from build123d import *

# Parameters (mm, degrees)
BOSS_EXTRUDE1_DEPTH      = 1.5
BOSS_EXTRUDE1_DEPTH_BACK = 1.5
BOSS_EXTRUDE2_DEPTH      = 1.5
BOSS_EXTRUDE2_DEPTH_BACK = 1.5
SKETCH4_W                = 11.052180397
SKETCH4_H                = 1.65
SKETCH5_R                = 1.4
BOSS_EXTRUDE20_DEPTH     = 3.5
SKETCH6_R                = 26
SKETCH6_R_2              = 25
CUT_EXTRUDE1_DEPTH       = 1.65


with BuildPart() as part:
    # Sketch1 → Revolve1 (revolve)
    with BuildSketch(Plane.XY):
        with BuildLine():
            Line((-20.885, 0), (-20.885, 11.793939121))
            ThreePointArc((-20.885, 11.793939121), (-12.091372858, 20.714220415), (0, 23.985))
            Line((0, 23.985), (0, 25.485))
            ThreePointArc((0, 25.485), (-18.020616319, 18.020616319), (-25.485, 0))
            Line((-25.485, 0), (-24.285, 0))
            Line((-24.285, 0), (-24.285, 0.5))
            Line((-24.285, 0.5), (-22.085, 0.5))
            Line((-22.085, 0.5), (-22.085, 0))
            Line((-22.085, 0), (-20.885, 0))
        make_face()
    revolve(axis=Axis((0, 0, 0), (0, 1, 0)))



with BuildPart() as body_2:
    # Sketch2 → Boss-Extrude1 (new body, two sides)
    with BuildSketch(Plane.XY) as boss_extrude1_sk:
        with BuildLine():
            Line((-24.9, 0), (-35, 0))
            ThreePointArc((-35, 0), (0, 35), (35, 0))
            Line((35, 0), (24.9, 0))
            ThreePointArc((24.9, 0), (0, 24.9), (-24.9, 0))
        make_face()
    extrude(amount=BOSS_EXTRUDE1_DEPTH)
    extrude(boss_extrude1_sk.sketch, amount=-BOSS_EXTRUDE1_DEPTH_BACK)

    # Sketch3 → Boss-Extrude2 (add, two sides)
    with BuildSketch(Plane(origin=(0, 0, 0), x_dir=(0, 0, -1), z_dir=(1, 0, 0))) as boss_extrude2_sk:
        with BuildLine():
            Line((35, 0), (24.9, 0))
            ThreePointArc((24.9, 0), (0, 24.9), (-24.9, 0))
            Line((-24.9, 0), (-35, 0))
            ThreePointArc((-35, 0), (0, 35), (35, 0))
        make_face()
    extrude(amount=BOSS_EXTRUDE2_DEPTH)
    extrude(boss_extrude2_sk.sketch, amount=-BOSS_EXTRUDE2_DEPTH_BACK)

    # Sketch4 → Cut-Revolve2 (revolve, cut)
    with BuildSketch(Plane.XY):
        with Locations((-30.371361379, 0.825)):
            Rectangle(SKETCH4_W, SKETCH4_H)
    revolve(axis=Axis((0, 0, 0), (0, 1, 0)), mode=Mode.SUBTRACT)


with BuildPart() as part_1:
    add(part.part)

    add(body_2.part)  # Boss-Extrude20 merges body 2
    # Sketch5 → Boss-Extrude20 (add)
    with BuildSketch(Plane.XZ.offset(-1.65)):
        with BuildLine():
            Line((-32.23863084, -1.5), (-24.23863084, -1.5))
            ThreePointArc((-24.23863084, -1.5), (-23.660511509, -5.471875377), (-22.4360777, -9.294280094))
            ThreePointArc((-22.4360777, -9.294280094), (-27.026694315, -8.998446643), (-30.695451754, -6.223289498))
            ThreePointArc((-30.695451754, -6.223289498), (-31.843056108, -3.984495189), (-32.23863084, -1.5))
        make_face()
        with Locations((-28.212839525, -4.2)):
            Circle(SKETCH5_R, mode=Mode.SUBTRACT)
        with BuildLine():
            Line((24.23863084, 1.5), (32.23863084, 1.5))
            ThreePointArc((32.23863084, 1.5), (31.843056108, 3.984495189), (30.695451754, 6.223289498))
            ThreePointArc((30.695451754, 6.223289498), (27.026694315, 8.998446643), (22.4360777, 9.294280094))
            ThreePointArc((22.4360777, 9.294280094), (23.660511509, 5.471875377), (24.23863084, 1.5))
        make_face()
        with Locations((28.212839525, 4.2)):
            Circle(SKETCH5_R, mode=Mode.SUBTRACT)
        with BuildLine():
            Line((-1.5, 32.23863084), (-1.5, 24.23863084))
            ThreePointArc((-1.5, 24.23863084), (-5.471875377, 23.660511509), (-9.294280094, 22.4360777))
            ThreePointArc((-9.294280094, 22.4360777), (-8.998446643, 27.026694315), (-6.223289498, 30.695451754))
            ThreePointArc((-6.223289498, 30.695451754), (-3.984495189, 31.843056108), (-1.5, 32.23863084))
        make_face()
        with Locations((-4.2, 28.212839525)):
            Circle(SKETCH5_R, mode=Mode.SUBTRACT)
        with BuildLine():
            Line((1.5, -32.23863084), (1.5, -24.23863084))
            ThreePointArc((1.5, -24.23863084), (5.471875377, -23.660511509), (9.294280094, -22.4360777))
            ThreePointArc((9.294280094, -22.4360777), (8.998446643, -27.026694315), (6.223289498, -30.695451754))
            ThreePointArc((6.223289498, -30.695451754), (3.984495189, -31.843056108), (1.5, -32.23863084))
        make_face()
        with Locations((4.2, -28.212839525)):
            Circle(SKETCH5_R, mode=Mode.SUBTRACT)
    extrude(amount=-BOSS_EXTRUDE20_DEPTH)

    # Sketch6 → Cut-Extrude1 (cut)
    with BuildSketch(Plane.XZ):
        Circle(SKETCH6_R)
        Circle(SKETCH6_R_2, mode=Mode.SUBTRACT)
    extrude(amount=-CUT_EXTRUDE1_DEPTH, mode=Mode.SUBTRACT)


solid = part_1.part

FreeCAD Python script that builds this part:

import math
import FreeCAD as App
import Part
import Sketcher

V = App.Vector

doc = App.newDocument("Part")
params = doc.addObject("Spreadsheet::Sheet", "Params")
for row, (alias, value) in enumerate([
    ("sketch1_width", "1.2 mm"),
    ("sketch1_width2", "2.2 mm"),
    ("sketch1_height", "1.5 mm"),
    ("sketch1_height2", "0.5 mm"),
    ("revolution_angle", "360 deg"),
    ("sketch2_radius", "35 mm"),
    ("sketch2_radius2", "24.9 mm"),
    ("pad1_length", "1.5 mm"),
    ("pad1_length2", "1.5 mm"),
    ("sketch3_radius", "35 mm"),
    ("sketch3_radius2", "24.9 mm"),
    ("pad2_length", "1.5 mm"),
    ("pad2_length2", "1.5 mm"),
    ("sketch4_height", "1.65 mm"),
    ("groove_angle", "360 deg"),
    ("sketch5_radius", "8 mm"),
    ("sketch5_diameter", "2.8 mm"),
    ("pad3_length", "3.5 mm"),
    ("sketch6_diameter", "52 mm"),
    ("sketch6_diameter2", "50 mm"),
    ("pocket1_length", "1.65 mm"),
], start=1):
    params.set(f"A{row}", alias)
    params.set(f"B{row}", "=" + value)
    params.setAlias(f"B{row}", alias)

body = doc.addObject("PartDesign::Body", "Body")

sketch1 = body.newObject("Sketcher::SketchObject", "Sketch")
sketch1.AttachmentSupport = (doc.getObject("XY_Plane"), [""])
sketch1.MapMode = "FlatFace"
sketch1.addGeometry(Part.LineSegment(V(-20.9, 0, 0), V(-20.9, 11.8, 0)), False)
sketch1.addGeometry(Part.ArcOfCircle(Part.Circle(V(0, 0, 0), V(0, 0, 1), 24), math.radians(90), math.radians(151)), False)
sketch1.addGeometry(Part.LineSegment(V(0, 24, 0), V(0, 25.5, 0)), False)
sketch1.addGeometry(Part.ArcOfCircle(Part.Circle(V(0, 0, 0), V(0, 0, 1), 25.5), math.radians(90), math.radians(180)), False)
sketch1.addGeometry(Part.LineSegment(V(-25.5, 0, 0), V(-24.3, 0, 0)), False)
sketch1.addGeometry(Part.LineSegment(V(-24.3, 0, 0), V(-24.3, 0.5, 0)), False)
sketch1.addGeometry(Part.LineSegment(V(-24.3, 0.5, 0), V(-22.1, 0.5, 0)), False)
sketch1.addGeometry(Part.LineSegment(V(-22.1, 0.5, 0), V(-22.1, 0, 0)), False)
sketch1.addGeometry(Part.LineSegment(V(-22.1, 0, 0), V(-20.9, 0, 0)), False)
sketch1.addConstraint(Sketcher.Constraint("Coincident", 0, 2, 1, 2))
sketch1.addConstraint(Sketcher.Constraint("Coincident", 1, 1, 2, 1))
sketch1.addConstraint(Sketcher.Constraint("Coincident", 2, 2, 3, 1))
sketch1.addConstraint(Sketcher.Constraint("Coincident", 3, 2, 4, 1))
sketch1.addConstraint(Sketcher.Constraint("Coincident", 4, 2, 5, 1))
sketch1.addConstraint(Sketcher.Constraint("Coincident", 5, 2, 6, 1))
sketch1.addConstraint(Sketcher.Constraint("Coincident", 6, 2, 7, 1))
sketch1.addConstraint(Sketcher.Constraint("Coincident", 7, 2, 8, 1))
sketch1.addConstraint(Sketcher.Constraint("Coincident", 8, 2, 0, 1))
sketch1.addConstraint(Sketcher.Constraint("Vertical", 0))
sketch1.addConstraint(Sketcher.Constraint("Vertical", 2))
sketch1.addConstraint(Sketcher.Constraint("Horizontal", 4))
sketch1.addConstraint(Sketcher.Constraint("Vertical", 5))
sketch1.addConstraint(Sketcher.Constraint("Horizontal", 6))
sketch1.addConstraint(Sketcher.Constraint("Vertical", 7))
sketch1.addConstraint(Sketcher.Constraint("Horizontal", 8))
sketch1.addConstraint(Sketcher.Constraint("Coincident", 1, 3, -1, 1))
sketch1.addConstraint(Sketcher.Constraint("Coincident", 3, 3, -1, 1))
sketch1.addConstraint(Sketcher.Constraint("PointOnObject", 1, 1, -2))
sketch1.addConstraint(Sketcher.Constraint("PointOnObject", 3, 2, -1))
sketch1.addConstraint(Sketcher.Constraint("PointOnObject", 7, 2, -1))
sketch1.addConstraint(Sketcher.Constraint("Equal", 4, 8))
sketch1.addConstraint(Sketcher.Constraint("DistanceX", 4, 1, 4, 2, 1.2))
sketch1.addConstraint(Sketcher.Constraint("DistanceX", 6, 1, 6, 2, 2.2))
sketch1.addConstraint(Sketcher.Constraint("DistanceY", 2, 1, 2, 2, 1.5))
sketch1.addConstraint(Sketcher.Constraint("DistanceY", 5, 1, 5, 2, 0.5))
sketch1.addConstraint(Sketcher.Constraint("Radius", 1, 23.985))
sketch1.setExpression("Constraints[22]", "Params.sketch1_width")
sketch1.setExpression("Constraints[23]", "Params.sketch1_width2")
sketch1.setExpression("Constraints[24]", "Params.sketch1_height")
sketch1.setExpression("Constraints[25]", "Params.sketch1_height2")
revolution = body.newObject("PartDesign::Revolution", "Revolution")
revolution.Profile = sketch1
revolution.ReferenceAxis = (sketch1, ["V_Axis"])
revolution.setExpression("Angle", "Params.revolution_angle")
body2 = doc.addObject("PartDesign::Body", "Body001")

sketch2 = body2.newObject("Sketcher::SketchObject", "Sketch001")
sketch2.AttachmentSupport = (doc.getObject("XY_Plane001"), [""])
sketch2.MapMode = "FlatFace"
sketch2.addGeometry(Part.LineSegment(V(-35, 0, 0), V(-25, 0, 0)), False)
sketch2.addGeometry(Part.ArcOfCircle(Part.Circle(V(0, 0, 0), V(0, 0, 1), 25), math.radians(0), math.radians(180)), False)
sketch2.addGeometry(Part.LineSegment(V(25, 0, 0), V(35, 0, 0)), False)
sketch2.addGeometry(Part.ArcOfCircle(Part.Circle(V(0, 0, 0), V(0, 0, 1), 35), math.radians(0), math.radians(180)), False)
sketch2.addConstraint(Sketcher.Constraint("Coincident", 0, 2, 1, 2))
sketch2.addConstraint(Sketcher.Constraint("Coincident", 1, 1, 2, 1))
sketch2.addConstraint(Sketcher.Constraint("Coincident", 2, 2, 3, 1))
sketch2.addConstraint(Sketcher.Constraint("Coincident", 3, 2, 0, 1))
sketch2.addConstraint(Sketcher.Constraint("Horizontal", 0))
sketch2.addConstraint(Sketcher.Constraint("Horizontal", 2))
sketch2.addConstraint(Sketcher.Constraint("Coincident", 1, 3, -1, 1))
sketch2.addConstraint(Sketcher.Constraint("Coincident", 3, 3, -1, 1))
sketch2.addConstraint(Sketcher.Constraint("PointOnObject", 0, 2, -1))
sketch2.addConstraint(Sketcher.Constraint("PointOnObject", 1, 1, -1))
sketch2.addConstraint(Sketcher.Constraint("Radius", 3, 35.0))
sketch2.addConstraint(Sketcher.Constraint("Radius", 1, 24.9))
sketch2.setExpression("Constraints[10]", "Params.sketch2_radius")
sketch2.setExpression("Constraints[11]", "Params.sketch2_radius2")
pad1 = body2.newObject("PartDesign::Pad", "Pad")
pad1.Profile = sketch2
pad1.Type = "TwoLengths"
pad1.setExpression("Length", "Params.pad1_length")
pad1.setExpression("Length2", "Params.pad1_length2")

sketch3 = body2.newObject("Sketcher::SketchObject", "Sketch002")
sketch3.AttachmentSupport = (doc.getObject("YZ_Plane001"), [""])
sketch3.MapMode = "FlatFace"
sketch3.addGeometry(Part.LineSegment(V(0, -25, 0), V(0, -35, 0)), False)
sketch3.addGeometry(Part.ArcOfCircle(Part.Circle(V(0, 0, 0), V(0, 0, 1), 35), math.radians(-90), math.radians(90)), False)
sketch3.addGeometry(Part.LineSegment(V(0, 35, 0), V(0, 25, 0)), False)
sketch3.addGeometry(Part.ArcOfCircle(Part.Circle(V(0, 0, 0), V(0, 0, 1), 25), math.radians(-90), math.radians(90)), False)
sketch3.addConstraint(Sketcher.Constraint("Coincident", 0, 2, 1, 1))
sketch3.addConstraint(Sketcher.Constraint("Coincident", 1, 2, 2, 1))
sketch3.addConstraint(Sketcher.Constraint("Coincident", 2, 2, 3, 2))
sketch3.addConstraint(Sketcher.Constraint("Coincident", 3, 1, 0, 1))
sketch3.addConstraint(Sketcher.Constraint("Vertical", 0))
sketch3.addConstraint(Sketcher.Constraint("Vertical", 2))
sketch3.addConstraint(Sketcher.Constraint("Coincident", 1, 3, -1, 1))
sketch3.addConstraint(Sketcher.Constraint("Coincident", 3, 3, -1, 1))
sketch3.addConstraint(Sketcher.Constraint("PointOnObject", 0, 2, -2))
sketch3.addConstraint(Sketcher.Constraint("PointOnObject", 1, 2, -2))
sketch3.addConstraint(Sketcher.Constraint("Radius", 1, 35.0))
sketch3.addConstraint(Sketcher.Constraint("Radius", 3, 24.9))
sketch3.setExpression("Constraints[10]", "Params.sketch3_radius")
sketch3.setExpression("Constraints[11]", "Params.sketch3_radius2")
pad2 = body2.newObject("PartDesign::Pad", "Pad001")
pad2.Profile = sketch3
pad2.Type = "TwoLengths"
pad2.setExpression("Length", "Params.pad2_length")
pad2.setExpression("Length2", "Params.pad2_length2")

sketch4 = body2.newObject("Sketcher::SketchObject", "Sketch003")
sketch4.AttachmentSupport = (doc.getObject("XY_Plane001"), [""])
sketch4.MapMode = "FlatFace"
sketch4.addGeometry(Part.LineSegment(V(-35.9, 1.6, 0), V(-35.9, 0, 0)), False)
sketch4.addGeometry(Part.LineSegment(V(-35.9, 0, 0), V(-24.8, 0, 0)), False)
sketch4.addGeometry(Part.LineSegment(V(-24.8, 0, 0), V(-24.8, 1.6, 0)), False)
sketch4.addGeometry(Part.LineSegment(V(-24.8, 1.6, 0), V(-35.9, 1.6, 0)), False)
sketch4.addConstraint(Sketcher.Constraint("Coincident", 0, 2, 1, 1))
sketch4.addConstraint(Sketcher.Constraint("Coincident", 1, 2, 2, 1))
sketch4.addConstraint(Sketcher.Constraint("Coincident", 2, 2, 3, 1))
sketch4.addConstraint(Sketcher.Constraint("Coincident", 3, 2, 0, 1))
sketch4.addConstraint(Sketcher.Constraint("Vertical", 0))
sketch4.addConstraint(Sketcher.Constraint("Horizontal", 1))
sketch4.addConstraint(Sketcher.Constraint("Vertical", 2))
sketch4.addConstraint(Sketcher.Constraint("Horizontal", 3))
sketch4.addConstraint(Sketcher.Constraint("PointOnObject", 0, 2, -1))
sketch4.addConstraint(Sketcher.Constraint("DistanceY", 0, 2, 0, 1, 1.65))
sketch4.addConstraint(Sketcher.Constraint("DistanceX", 1, 1, 1, 2, 11.05218))
sketch4.addConstraint(Sketcher.Constraint("DistanceX", 0, 2, -1, 1, 35.897452))
sketch4.setExpression("Constraints[9]", "Params.sketch4_height")
groove = body2.newObject("PartDesign::Groove", "Groove")
groove.Profile = sketch4
groove.ReferenceAxis = (sketch4, ["V_Axis"])
groove.setExpression("Angle", "Params.groove_angle")
doc.recompute()

boolean = body.newObject("PartDesign::Boolean", "Boolean")
boolean.Type = "Fuse"
boolean.addObjects([body2])

sketch5 = body.newObject("Sketcher::SketchObject", "Sketch004")
sketch5.AttachmentSupport = (doc.getObject("XZ_Plane"), [""])
sketch5.MapMode = "FlatFace"
sketch5.AttachmentOffset = App.Placement(V(0, 0, -1.65), App.Rotation())
sketch5.addGeometry(Part.LineSegment(V(-24.2, -1.5, 0), V(-32.2, -1.5, 0)), False)
sketch5.addGeometry(Part.ArcOfCircle(Part.Circle(V(-24.2, -1.5, 0), V(0, 0, 1), 8), math.radians(180), math.radians(216)), False)
sketch5.addGeometry(Part.ArcOfCircle(Part.Circle(V(-24.2, -1.5, 0), V(0, 0, 1), 8), math.radians(-144), math.radians(-77)), False)
sketch5.addGeometry(Part.ArcOfCircle(Part.Circle(V(0, 0, 0), V(0, 0, 1), 24.3), math.radians(-176.46), math.radians(-157.5)), False)
sketch5.addGeometry(Part.Circle(V(-28.2, -4.2, 0), V(0, 0, 1), 1.4), False)
sketch5.addGeometry(Part.LineSegment(V(24.2, 1.5, 0), V(32.2, 1.5, 0)), False)
sketch5.addGeometry(Part.ArcOfCircle(Part.Circle(V(24.2, 1.5, 0), V(0, 0, 1), 8), math.radians(0), math.radians(36)), False)
sketch5.addGeometry(Part.ArcOfCircle(Part.Circle(V(24.2, 1.5, 0), V(0, 0, 1), 8), math.radians(36), math.radians(103)), False)
sketch5.addGeometry(Part.ArcOfCircle(Part.Circle(V(0, 0, 0), V(0, 0, 1), 24.3), math.radians(3.54), math.radians(22.5)), False)
sketch5.addGeometry(Part.Circle(V(28.2, 4.2, 0), V(0, 0, 1), 1.4), False)
sketch5.addGeometry(Part.LineSegment(V(-1.5, 24.2, 0), V(-1.5, 32.2, 0)), False)
sketch5.addGeometry(Part.ArcOfCircle(Part.Circle(V(-1.5, 24.2, 0), V(0, 0, 1), 8), math.radians(90), math.radians(126)), False)
sketch5.addGeometry(Part.ArcOfCircle(Part.Circle(V(-1.5, 24.2, 0), V(0, 0, 1), 8), math.radians(126), math.radians(193)), False)
sketch5.addGeometry(Part.ArcOfCircle(Part.Circle(V(0, 0, 0), V(0, 0, 1), 24.3), math.radians(93.54), math.radians(112.5)), False)
sketch5.addGeometry(Part.Circle(V(-4.2, 28.2, 0), V(0, 0, 1), 1.4), False)
sketch5.addGeometry(Part.LineSegment(V(1.5, -24.2, 0), V(1.5, -32.2, 0)), False)
sketch5.addGeometry(Part.ArcOfCircle(Part.Circle(V(1.5, -24.2, 0), V(0, 0, 1), 8), math.radians(-90), math.radians(-54)), False)
sketch5.addGeometry(Part.ArcOfCircle(Part.Circle(V(1.5, -24.2, 0), V(0, 0, 1), 8), math.radians(-54), math.radians(13)), False)
sketch5.addGeometry(Part.ArcOfCircle(Part.Circle(V(0, 0, 0), V(0, 0, 1), 24.3), math.radians(-86.46), math.radians(-67.5)), False)
sketch5.addGeometry(Part.Circle(V(4.2, -28.2, 0), V(0, 0, 1), 1.4), False)
sketch5.addConstraint(Sketcher.Constraint("Coincident", 0, 2, 1, 1))
sketch5.addConstraint(Sketcher.Constraint("Tangent", 1, 2, 2, 1))
sketch5.addConstraint(Sketcher.Constraint("Coincident", 2, 2, 3, 2))
sketch5.addConstraint(Sketcher.Constraint("Coincident", 3, 1, 0, 1))
sketch5.addConstraint(Sketcher.Constraint("Coincident", 5, 2, 6, 1))
sketch5.addConstraint(Sketcher.Constraint("Tangent", 6, 2, 7, 1))
sketch5.addConstraint(Sketcher.Constraint("Coincident", 7, 2, 8, 2))
sketch5.addConstraint(Sketcher.Constraint("Coincident", 8, 1, 5, 1))
sketch5.addConstraint(Sketcher.Constraint("Coincident", 10, 2, 11, 1))
sketch5.addConstraint(Sketcher.Constraint("Tangent", 11, 2, 12, 1))
sketch5.addConstraint(Sketcher.Constraint("Coincident", 12, 2, 13, 2))
sketch5.addConstraint(Sketcher.Constraint("Coincident", 13, 1, 10, 1))
sketch5.addConstraint(Sketcher.Constraint("Coincident", 15, 2, 16, 1))
sketch5.addConstraint(Sketcher.Constraint("Tangent", 16, 2, 17, 1))
sketch5.addConstraint(Sketcher.Constraint("Coincident", 17, 2, 18, 2))
sketch5.addConstraint(Sketcher.Constraint("Coincident", 18, 1, 15, 1))
sketch5.addConstraint(Sketcher.Constraint("Horizontal", 0))
sketch5.addConstraint(Sketcher.Constraint("Horizontal", 5))
sketch5.addConstraint(Sketcher.Constraint("Vertical", 10))
sketch5.addConstraint(Sketcher.Constraint("Vertical", 15))
sketch5.addConstraint(Sketcher.Constraint("Coincident", 3, 3, -1, 1))
sketch5.addConstraint(Sketcher.Constraint("Coincident", 8, 3, -1, 1))
sketch5.addConstraint(Sketcher.Constraint("Coincident", 13, 3, -1, 1))
sketch5.addConstraint(Sketcher.Constraint("Coincident", 18, 3, -1, 1))
sketch5.addConstraint(Sketcher.Constraint("Coincident", 3, 1, 1, 3))
sketch5.addConstraint(Sketcher.Constraint("Coincident", 8, 1, 6, 3))
sketch5.addConstraint(Sketcher.Constraint("Coincident", 13, 1, 11, 3))
sketch5.addConstraint(Sketcher.Constraint("Coincident", 18, 1, 16, 3))
sketch5.addConstraint(Sketcher.Constraint("Equal", 1, 2))
sketch5.addConstraint(Sketcher.Constraint("Equal", 2, 6))
sketch5.addConstraint(Sketcher.Constraint("Equal", 6, 7))
sketch5.addConstraint(Sketcher.Constraint("Equal", 3, 8))
sketch5.addConstraint(Sketcher.Constraint("Equal", 4, 9))
sketch5.addConstraint(Sketcher.Constraint("Equal", 7, 11))
sketch5.addConstraint(Sketcher.Constraint("Equal", 11, 12))
sketch5.addConstraint(Sketcher.Constraint("Equal", 8, 13))
sketch5.addConstraint(Sketcher.Constraint("Equal", 9, 14))
sketch5.addConstraint(Sketcher.Constraint("Equal", 12, 16))
sketch5.addConstraint(Sketcher.Constraint("Equal", 16, 17))
sketch5.addConstraint(Sketcher.Constraint("Equal", 13, 18))
sketch5.addConstraint(Sketcher.Constraint("Equal", 14, 19))
sketch5.addConstraint(Sketcher.Constraint("Symmetric", 4, 3, 9, 3, -1, 1))
sketch5.addConstraint(Sketcher.Constraint("Symmetric", 14, 3, 19, 3, -1, 1))
sketch5.addConstraint(Sketcher.Constraint("Symmetric", 1, 2, 6, 2, -1, 1))
sketch5.addConstraint(Sketcher.Constraint("Symmetric", 11, 2, 16, 2, -1, 1))
sketch5.addConstraint(Sketcher.Constraint("Radius", 1, 8.0))
sketch5.addConstraint(Sketcher.Constraint("Diameter", 4, 2.8))
sketch5.addConstraint(Sketcher.Constraint("Radius", 3, 24.285))
sketch5.addConstraint(Sketcher.Constraint("DistanceY", 2, 3, 6, 3, 3.0))
sketch5.addConstraint(Sketcher.Constraint("DistanceY", 4, 3, -1, 1, 4.2))
sketch5.addConstraint(Sketcher.Constraint("DistanceX", 11, 3, -1, 1, 1.5))
sketch5.addConstraint(Sketcher.Constraint("DistanceX", 14, 3, -1, 1, 4.2))
sketch5.addConstraint(Sketcher.Constraint("DistanceX", 4, 3, -1, 1, 28.21284))
sketch5.addConstraint(Sketcher.Constraint("DistanceY", -1, 1, 14, 3, 28.21284))
sketch5.addConstraint(Sketcher.Constraint("DistanceX", 1, 2, -1, 1, 30.695452))
sketch5.addConstraint(Sketcher.Constraint("DistanceX", 11, 2, -1, 1, 6.223289))
sketch5.setExpression("Constraints[45]", "Params.sketch5_radius")
sketch5.setExpression("Constraints[46]", "Params.sketch5_diameter")
pad3 = body.newObject("PartDesign::Pad", "Pad002")
pad3.Profile = sketch5
pad3.setExpression("Length", "Params.pad3_length")
pad3.Reversed = True

sketch6 = body.newObject("Sketcher::SketchObject", "Sketch005")
sketch6.AttachmentSupport = (doc.getObject("XZ_Plane"), [""])
sketch6.MapMode = "FlatFace"
sketch6.addGeometry(Part.Circle(V(0, 0, 0), V(0, 0, 1), 26), False)
sketch6.addGeometry(Part.Circle(V(0, 0, 0), V(0, 0, 1), 25), False)
sketch6.addConstraint(Sketcher.Constraint("Coincident", 0, 3, -1, 1))
sketch6.addConstraint(Sketcher.Constraint("Coincident", 1, 3, -1, 1))
sketch6.addConstraint(Sketcher.Constraint("Diameter", 0, 52.0))
sketch6.addConstraint(Sketcher.Constraint("Diameter", 1, 50.0))
sketch6.setExpression("Constraints[2]", "Params.sketch6_diameter")
sketch6.setExpression("Constraints[3]", "Params.sketch6_diameter2")
pocket1 = body.newObject("PartDesign::Pocket", "Pocket")
pocket1.Profile = sketch6
pocket1.setExpression("Length", "Params.pocket1_length")

doc.recompute()
